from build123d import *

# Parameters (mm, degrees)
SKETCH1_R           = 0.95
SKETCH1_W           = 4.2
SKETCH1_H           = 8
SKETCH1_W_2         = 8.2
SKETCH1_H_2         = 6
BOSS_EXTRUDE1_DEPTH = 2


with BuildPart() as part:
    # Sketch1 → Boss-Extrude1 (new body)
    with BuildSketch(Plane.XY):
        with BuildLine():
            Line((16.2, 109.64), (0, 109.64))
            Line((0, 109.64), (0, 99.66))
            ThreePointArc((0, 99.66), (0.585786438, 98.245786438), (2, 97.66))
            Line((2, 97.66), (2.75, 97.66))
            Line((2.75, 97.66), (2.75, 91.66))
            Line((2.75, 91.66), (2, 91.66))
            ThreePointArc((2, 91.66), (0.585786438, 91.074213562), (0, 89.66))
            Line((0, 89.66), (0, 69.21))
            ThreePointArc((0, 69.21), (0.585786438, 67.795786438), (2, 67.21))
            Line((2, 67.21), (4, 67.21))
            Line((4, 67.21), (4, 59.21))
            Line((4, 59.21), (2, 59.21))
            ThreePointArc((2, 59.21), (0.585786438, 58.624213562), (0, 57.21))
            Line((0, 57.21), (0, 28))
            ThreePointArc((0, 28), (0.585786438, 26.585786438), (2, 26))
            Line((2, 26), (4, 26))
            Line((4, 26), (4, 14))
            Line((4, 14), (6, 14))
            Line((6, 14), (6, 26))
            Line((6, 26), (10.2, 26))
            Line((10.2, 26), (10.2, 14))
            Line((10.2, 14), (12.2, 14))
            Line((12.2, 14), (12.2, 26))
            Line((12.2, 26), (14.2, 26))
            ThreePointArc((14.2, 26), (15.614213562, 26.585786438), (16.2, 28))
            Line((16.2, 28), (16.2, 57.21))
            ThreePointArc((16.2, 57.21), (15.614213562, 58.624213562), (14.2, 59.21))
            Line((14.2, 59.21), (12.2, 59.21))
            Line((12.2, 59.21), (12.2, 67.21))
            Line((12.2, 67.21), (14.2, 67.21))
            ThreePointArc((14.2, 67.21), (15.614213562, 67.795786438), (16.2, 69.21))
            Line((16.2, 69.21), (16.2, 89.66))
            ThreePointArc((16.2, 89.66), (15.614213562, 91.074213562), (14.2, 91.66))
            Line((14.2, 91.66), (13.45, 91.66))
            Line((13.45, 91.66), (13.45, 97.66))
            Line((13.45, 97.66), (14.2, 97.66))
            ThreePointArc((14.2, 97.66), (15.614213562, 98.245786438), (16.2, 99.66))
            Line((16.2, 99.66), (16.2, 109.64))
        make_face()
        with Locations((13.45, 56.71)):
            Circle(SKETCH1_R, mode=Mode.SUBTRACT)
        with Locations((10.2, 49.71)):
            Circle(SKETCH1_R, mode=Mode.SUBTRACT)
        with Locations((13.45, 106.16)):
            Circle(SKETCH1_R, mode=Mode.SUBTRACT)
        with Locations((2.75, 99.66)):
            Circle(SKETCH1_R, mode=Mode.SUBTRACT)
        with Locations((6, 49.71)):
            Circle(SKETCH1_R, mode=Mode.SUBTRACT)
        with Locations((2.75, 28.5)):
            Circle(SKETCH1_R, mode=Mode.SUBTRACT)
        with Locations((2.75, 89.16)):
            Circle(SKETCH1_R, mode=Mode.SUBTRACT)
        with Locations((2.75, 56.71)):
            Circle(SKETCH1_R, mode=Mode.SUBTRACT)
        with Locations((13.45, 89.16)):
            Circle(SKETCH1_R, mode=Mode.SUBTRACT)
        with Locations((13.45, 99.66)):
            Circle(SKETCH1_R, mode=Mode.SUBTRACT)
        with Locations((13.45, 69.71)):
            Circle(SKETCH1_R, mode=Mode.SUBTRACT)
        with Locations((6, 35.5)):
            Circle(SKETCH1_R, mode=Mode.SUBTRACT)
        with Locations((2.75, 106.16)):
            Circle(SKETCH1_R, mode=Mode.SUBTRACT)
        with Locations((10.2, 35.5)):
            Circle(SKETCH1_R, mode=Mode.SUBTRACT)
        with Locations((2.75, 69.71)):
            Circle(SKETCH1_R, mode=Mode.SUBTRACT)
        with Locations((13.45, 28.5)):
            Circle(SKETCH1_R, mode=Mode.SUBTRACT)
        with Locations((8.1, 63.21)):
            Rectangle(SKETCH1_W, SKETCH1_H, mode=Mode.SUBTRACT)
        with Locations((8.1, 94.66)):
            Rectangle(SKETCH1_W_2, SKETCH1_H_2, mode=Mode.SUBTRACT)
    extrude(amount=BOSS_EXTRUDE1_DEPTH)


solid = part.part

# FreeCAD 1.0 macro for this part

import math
import FreeCAD as App
import Part
import Sketcher
Q = App.Units.Quantity

doc = App.newDocument("Part")
params = doc.addObject("Spreadsheet::Sheet", "Params")
for row, (alias, value) in enumerate([
    ("sketch1_radius", "2 mm"),
    ("sketch1_diameter", "1.9 mm"),
    ("sketch1_width", "2 mm"),
    ("sketch1_height", "6 mm"),
    ("sketch1_height2", "8 mm"),
    ("pad1_length", "2 mm"),
], start=1):
    params.set(f"A{row}", alias)
    params.set(f"B{row}", "=" + value)
    params.setAlias(f"B{row}", alias)

body = doc.addObject("PartDesign::Body", "Body")

# Sketch on XY plane
sketch1 = body.newObject("Sketcher::SketchObject", "Sketch")
sketch1.AttachmentSupport = (doc.getObject("XY_Plane"), [""])
sketch1.MapMode = "FlatFace"
sketch1.addGeometry(Part.LineSegment(App.Vector(16.2, 109.6, 0), App.Vector(0, 109.6, 0)), False)
sketch1.addGeometry(Part.LineSegment(App.Vector(0, 109.6, 0), App.Vector(0, 99.7, 0)), False)
sketch1.addGeometry(Part.ArcOfCircle(Part.Circle(App.Vector(2, 99.7, 0), App.Vector(0, 0, 1), 2), math.radians(-180), math.radians(-90)), False)
sketch1.addGeometry(Part.LineSegment(App.Vector(2, 97.7, 0), App.Vector(2.8, 97.7, 0)), False)
sketch1.addGeometry(Part.LineSegment(App.Vector(2.8, 97.7, 0), App.Vector(2.8, 91.7, 0)), False)
sketch1.addGeometry(Part.LineSegment(App.Vector(2.8, 91.7, 0), App.Vector(2, 91.7, 0)), False)
sketch1.addGeometry(Part.ArcOfCircle(Part.Circle(App.Vector(2, 89.7, 0), App.Vector(0, 0, 1), 2), math.radians(90), math.radians(180)), False)
sketch1.addGeometry(Part.LineSegment(App.Vector(0, 89.7, 0), App.Vector(0, 69.2, 0)), False)
sketch1.addGeometry(Part.ArcOfCircle(Part.Circle(App.Vector(2, 69.2, 0), App.Vector(0, 0, 1), 2), math.radians(-180), math.radians(-90)), False)
sketch1.addGeometry(Part.LineSegment(App.Vector(2, 67.2, 0), App.Vector(4, 67.2, 0)), False)
sketch1.addGeometry(Part.LineSegment(App.Vector(4, 67.2, 0), App.Vector(4, 59.2, 0)), False)
sketch1.addGeometry(Part.LineSegment(App.Vector(4, 59.2, 0), App.Vector(2, 59.2, 0)), False)
sketch1.addGeometry(Part.ArcOfCircle(Part.Circle(App.Vector(2, 57.2, 0), App.Vector(0, 0, 1), 2), math.radians(90), math.radians(180)), False)
sketch1.addGeometry(Part.LineSegment(App.Vector(0, 57.2, 0), App.Vector(0, 28, 0)), False)
sketch1.addGeometry(Part.ArcOfCircle(Part.Circle(App.Vector(2, 28, 0), App.Vector(0, 0, 1), 2), math.radians(-180), math.radians(-90)), False)
sketch1.addGeometry(Part.LineSegment(App.Vector(2, 26, 0), App.Vector(4, 26, 0)), False)
sketch1.addGeometry(Part.LineSegment(App.Vector(4, 26, 0), App.Vector(4, 14, 0)), False)
sketch1.addGeometry(Part.LineSegment(App.Vector(4, 14, 0), App.Vector(6, 14, 0)), False)
sketch1.addGeometry(Part.LineSegment(App.Vector(6, 14, 0), App.Vector(6, 26, 0)), False)
sketch1.addGeometry(Part.LineSegment(App.Vector(6, 26, 0), App.Vector(10.2, 26, 0)), False)
sketch1.addGeometry(Part.LineSegment(App.Vector(10.2, 26, 0), App.Vector(10.2, 14, 0)), False)
sketch1.addGeometry(Part.LineSegment(App.Vector(10.2, 14, 0), App.Vector(12.2, 14, 0)), False)
sketch1.addGeometry(Part.LineSegment(App.Vector(12.2, 14, 0), App.Vector(12.2, 26, 0)), False)
sketch1.addGeometry(Part.LineSegment(App.Vector(12.2, 26, 0), App.Vector(14.2, 26, 0)), False)
sketch1.addGeometry(Part.ArcOfCircle(Part.Circle(App.Vector(14.2, 28, 0), App.Vector(0, 0, 1), 2), math.radians(-90), math.radians(0)), False)
sketch1.addGeometry(Part.LineSegment(App.Vector(16.2, 28, 0), App.Vector(16.2, 57.2, 0)), False)
sketch1.addGeometry(Part.ArcOfCircle(Part.Circle(App.Vector(14.2, 57.2, 0), App.Vector(0, 0, 1), 2), math.radians(0), math.radians(90)), False)
sketch1.addGeometry(Part.LineSegment(App.Vector(14.2, 59.2, 0), App.Vector(12.2, 59.2, 0)), False)
sketch1.addGeometry(Part.LineSegment(App.Vector(12.2, 59.2, 0), App.Vector(12.2, 67.2, 0)), False)
sketch1.addGeometry(Part.LineSegment(App.Vector(12.2, 67.2, 0), App.Vector(14.2, 67.2, 0)), False)
sketch1.addGeometry(Part.ArcOfCircle(Part.Circle(App.Vector(14.2, 69.2, 0), App.Vector(0, 0, 1), 2), math.radians(-90), math.radians(0)), False)
sketch1.addGeometry(Part.LineSegment(App.Vector(16.2, 69.2, 0), App.Vector(16.2, 89.7, 0)), False)
sketch1.addGeometry(Part.ArcOfCircle(Part.Circle(App.Vector(14.2, 89.7, 0), App.Vector(0, 0, 1), 2), math.radians(0), math.radians(90)), False)
sketch1.addGeometry(Part.LineSegment(App.Vector(14.2, 91.7, 0), App.Vector(13.4, 91.7, 0)), False)
sketch1.addGeometry(Part.LineSegment(App.Vector(13.4, 91.7, 0), App.Vector(13.4, 97.7, 0)), False)
sketch1.addGeometry(Part.LineSegment(App.Vector(13.4, 97.7, 0), App.Vector(14.2, 97.7, 0)), False)
sketch1.addGeometry(Part.ArcOfCircle(Part.Circle(App.Vector(14.2, 99.7, 0), App.Vector(0, 0, 1), 2), math.radians(-90), math.radians(0)), False)
sketch1.addGeometry(Part.LineSegment(App.Vector(16.2, 99.7, 0), App.Vector(16.2, 109.6, 0)), False)
sketch1.addGeometry(Part.Circle(App.Vector(2.8, 28.5, 0), App.Vector(0, 0, 1), 0.9), False)
sketch1.addGeometry(Part.Circle(App.Vector(6, 35.5, 0), App.Vector(0, 0, 1), 0.9), False)
sketch1.addGeometry(Part.Circle(App.Vector(2.8, 56.7, 0), App.Vector(0, 0, 1), 0.9), False)
sketch1.addGeometry(Part.Circle(App.Vector(6, 49.7, 0), App.Vector(0, 0, 1), 0.9), False)
sketch1.addGeometry(Part.Circle(App.Vector(10.2, 35.5, 0), App.Vector(0, 0, 1), 0.9), False)
sketch1.addGeometry(Part.Circle(App.Vector(13.4, 28.5, 0), App.Vector(0, 0, 1), 0.9), False)
sketch1.addGeometry(Part.Circle(App.Vector(10.2, 49.7, 0), App.Vector(0, 0, 1), 0.9), False)
sketch1.addGeometry(Part.LineSegment(App.Vector(10.2, 59.2, 0), App.Vector(6, 59.2, 0)), False)
sketch1.addGeometry(Part.LineSegment(App.Vector(6, 59.2, 0), App.Vector(6, 67.2, 0)), False)
sketch1.addGeometry(Part.LineSegment(App.Vector(6, 67.2, 0), App.Vector(10.2, 67.2, 0)), False)
sketch1.addGeometry(Part.LineSegment(App.Vector(10.2, 67.2, 0), App.Vector(10.2, 59.2, 0)), False)
sketch1.addGeometry(Part.Circle(App.Vector(13.4, 56.7, 0), App.Vector(0, 0, 1), 0.9), False)
sketch1.addGeometry(Part.Circle(App.Vector(2.8, 69.7, 0), App.Vector(0, 0, 1), 0.9), False)
sketch1.addGeometry(Part.Circle(App.Vector(2.8, 89.2, 0), App.Vector(0, 0, 1), 0.9), False)
sketch1.addGeometry(Part.Circle(App.Vector(2.8, 99.7, 0), App.Vector(0, 0, 1), 0.9), False)
sketch1.addGeometry(Part.Circle(App.Vector(2.8, 106.2, 0), App.Vector(0, 0, 1), 0.9), False)
sketch1.addGeometry(Part.Circle(App.Vector(13.4, 69.7, 0), App.Vector(0, 0, 1), 0.9), False)
sketch1.addGeometry(Part.LineSegment(App.Vector(12.2, 91.7, 0), App.Vector(4, 91.7, 0)), False)
sketch1.addGeometry(Part.LineSegment(App.Vector(4, 91.7, 0), App.Vector(4, 97.7, 0)), False)
sketch1.addGeometry(Part.LineSegment(App.Vector(4, 97.7, 0), App.Vector(12.2, 97.7, 0)), False)
sketch1.addGeometry(Part.LineSegment(App.Vector(12.2, 97.7, 0), App.Vector(12.2, 91.7, 0)), False)
sketch1.addGeometry(Part.Circle(App.Vector(13.4, 89.2, 0), App.Vector(0, 0, 1), 0.9), False)
sketch1.addGeometry(Part.Circle(App.Vector(13.4, 99.7, 0), App.Vector(0, 0, 1), 0.9), False)
sketch1.addGeometry(Part.Circle(App.Vector(13.4, 106.2, 0), App.Vector(0, 0, 1), 0.9), False)
sketch1.addConstraint(Sketcher.Constraint("Coincident", 0, 2, 1, 1))
sketch1.addConstraint(Sketcher.Constraint("Tangent", 1, 2, 2, 1))
sketch1.addConstraint(Sketcher.Constraint("Tangent", 2, 2, 3, 1))
sketch1.addConstraint(Sketcher.Constraint("Coincident", 3, 2, 4, 1))
sketch1.addConstraint(Sketcher.Constraint("Coincident", 4, 2, 5, 1))
sketch1.addConstraint(Sketcher.Constraint("Tangent", 5, 2, 6, 1))
sketch1.addConstraint(Sketcher.Constraint("Tangent", 6, 2, 7, 1))
sketch1.addConstraint(Sketcher.Constraint("Tangent", 7, 2, 8, 1))
sketch1.addConstraint(Sketcher.Constraint("Tangent", 8, 2, 9, 1))
sketch1.addConstraint(Sketcher.Constraint("Coincident", 9, 2, 10, 1))
sketch1.addConstraint(Sketcher.Constraint("Coincident", 10, 2, 11, 1))
sketch1.addConstraint(Sketcher.Constraint("Tangent", 11, 2, 12, 1))
sketch1.addConstraint(Sketcher.Constraint("Tangent", 12, 2, 13, 1))
sketch1.addConstraint(Sketcher.Constraint("Tangent", 13, 2, 14, 1))
sketch1.addConstraint(Sketcher.Constraint("Tangent", 14, 2, 15, 1))
sketch1.addConstraint(Sketcher.Constraint("Coincident", 15, 2, 16, 1))
sketch1.addConstraint(Sketcher.Constraint("Coincident", 16, 2, 17, 1))
sketch1.addConstraint(Sketcher.Constraint("Coincident", 17, 2, 18, 1))
sketch1.addConstraint(Sketcher.Constraint("Coincident", 18, 2, 19, 1))
sketch1.addConstraint(Sketcher.Constraint("Coincident", 19, 2, 20, 1))
sketch1.addConstraint(Sketcher.Constraint("Coincident", 20, 2, 21, 1))
sketch1.addConstraint(Sketcher.Constraint("Coincident", 21, 2, 22, 1))
sketch1.addConstraint(Sketcher.Constraint("Coincident", 22, 2, 23, 1))
sketch1.addConstraint(Sketcher.Constraint("Tangent", 23, 2, 24, 1))
sketch1.addConstraint(Sketcher.Constraint("Tangent", 24, 2, 25, 1))
sketch1.addConstraint(Sketcher.Constraint("Tangent", 25, 2, 26, 1))
sketch1.addConstraint(Sketcher.Constraint("Tangent", 26, 2, 27, 1))
sketch1.addConstraint(Sketcher.Constraint("Coincident", 27, 2, 28, 1))
sketch1.addConstraint(Sketcher.Constraint("Coincident", 28, 2, 29, 1))
sketch1.addConstraint(Sketcher.Constraint("Tangent", 29, 2, 30, 1))
sketch1.addConstraint(Sketcher.Constraint("Tangent", 30, 2, 31, 1))
sketch1.addConstraint(Sketcher.Constraint("Tangent", 31, 2, 32, 1))
sketch1.addConstraint(Sketcher.Constraint("Tangent", 32, 2, 33, 1))
sketch1.addConstraint(Sketcher.Constraint("Coincident", 33, 2, 34, 1))
sketch1.addConstraint(Sketcher.Constraint("Coincident", 34, 2, 35, 1))
sketch1.addConstraint(Sketcher.Constraint("Tangent", 35, 2, 36, 1))
sketch1.addConstraint(Sketcher.Constraint("Tangent", 36, 2, 37, 1))
sketch1.addConstraint(Sketcher.Constraint("Coincident", 37, 2, 0, 1))
sketch1.addConstraint(Sketcher.Constraint("Coincident", 45, 2, 46, 1))
sketch1.addConstraint(Sketcher.Constraint("Coincident", 46, 2, 47, 1))
sketch1.addConstraint(Sketcher.Constraint("Coincident", 47, 2, 48, 1))
sketch1.addConstraint(Sketcher.Constraint("Coincident", 48, 2, 45, 1))
sketch1.addConstraint(Sketcher.Constraint("Coincident", 55, 2, 56, 1))
sketch1.addConstraint(Sketcher.Constraint("Coincident", 56, 2, 57, 1))
sketch1.addConstraint(Sketcher.Constraint("Coincident", 57, 2, 58, 1))
sketch1.addConstraint(Sketcher.Constraint("Coincident", 58, 2, 55, 1))
sketch1.addConstraint(Sketcher.Constraint("Horizontal", 0))
sketch1.addConstraint(Sketcher.Constraint("Vertical", 1))
sketch1.addConstraint(Sketcher.Constraint("Horizontal", 3))
sketch1.addConstraint(Sketcher.Constraint("Vertical", 4))
sketch1.addConstraint(Sketcher.Constraint("Horizontal", 5))
sketch1.addConstraint(Sketcher.Constraint("Vertical", 7))
sketch1.addConstraint(Sketcher.Constraint("Horizontal", 9))
sketch1.addConstraint(Sketcher.Constraint("Vertical", 10))
sketch1.addConstraint(Sketcher.Constraint("Horizontal", 11))
sketch1.addConstraint(Sketcher.Constraint("Vertical", 13))
sketch1.addConstraint(Sketcher.Constraint("Horizontal", 15))
sketch1.addConstraint(Sketcher.Constraint("Vertical", 16))
sketch1.addConstraint(Sketcher.Constraint("Horizontal", 17))
sketch1.addConstraint(Sketcher.Constraint("Vertical", 18))
sketch1.addConstraint(Sketcher.Constraint("Horizontal", 19))
sketch1.addConstraint(Sketcher.Constraint("Vertical", 20))
sketch1.addConstraint(Sketcher.Constraint("Horizontal", 21))
sketch1.addConstraint(Sketcher.Constraint("Vertical", 22))
sketch1.addConstraint(Sketcher.Constraint("Horizontal", 23))
sketch1.addConstraint(Sketcher.Constraint("Vertical", 25))
sketch1.addConstraint(Sketcher.Constraint("Horizontal", 27))
sketch1.addConstraint(Sketcher.Constraint("Vertical", 28))
sketch1.addConstraint(Sketcher.Constraint("Horizontal", 29))
sketch1.addConstraint(Sketcher.Constraint("Vertical", 31))
sketch1.addConstraint(Sketcher.Constraint("Horizontal", 33))
sketch1.addConstraint(Sketcher.Constraint("Vertical", 34))
sketch1.addConstraint(Sketcher.Constraint("Horizontal", 35))
sketch1.addConstraint(Sketcher.Constraint("Vertical", 37))
sketch1.addConstraint(Sketcher.Constraint("Horizontal", 45))
sketch1.addConstraint(Sketcher.Constraint("Vertical", 46))
sketch1.addConstraint(Sketcher.Constraint("Horizontal", 47))
sketch1.addConstraint(Sketcher.Constraint("Vertical", 48))
sketch1.addConstraint(Sketcher.Constraint("Horizontal", 55))
sketch1.addConstraint(Sketcher.Constraint("Vertical", 56))
sketch1.addConstraint(Sketcher.Constraint("Horizontal", 57))
sketch1.addConstraint(Sketcher.Constraint("Vertical", 58))
sketch1.addConstraint(Sketcher.Constraint("Equal", 2, 6))
sketch1.addConstraint(Sketcher.Constraint("Equal", 6, 8))
sketch1.addConstraint(Sketcher.Constraint("Equal", 8, 12))
sketch1.addConstraint(Sketcher.Constraint("Equal", 12, 14))
sketch1.addConstraint(Sketcher.Constraint("Equal", 14, 24))
sketch1.addConstraint(Sketcher.Constraint("Equal", 24, 26))
sketch1.addConstraint(Sketcher.Constraint("Equal", 26, 30))
sketch1.addConstraint(Sketcher.Constraint("Equal", 30, 32))
sketch1.addConstraint(Sketcher.Constraint("Equal", 32, 36))
sketch1.addConstraint(Sketcher.Constraint("Equal", 38, 39))
sketch1.addConstraint(Sketcher.Constraint("Equal", 39, 40))
sketch1.addConstraint(Sketcher.Constraint("Equal", 40, 41))
sketch1.addConstraint(Sketcher.Constraint("Equal", 41, 42))
sketch1.addConstraint(Sketcher.Constraint("Equal", 42, 43))
sketch1.addConstraint(Sketcher.Constraint("Equal", 43, 44))
sketch1.addConstraint(Sketcher.Constraint("Equal", 44, 49))
sketch1.addConstraint(Sketcher.Constraint("Equal", 49, 50))
sketch1.addConstraint(Sketcher.Constraint("Equal", 50, 51))
sketch1.addConstraint(Sketcher.Constraint("Equal", 51, 52))
sketch1.addConstraint(Sketcher.Constraint("Equal", 52, 53))
sketch1.addConstraint(Sketcher.Constraint("Equal", 53, 54))
sketch1.addConstraint(Sketcher.Constraint("Equal", 54, 59))
sketch1.addConstraint(Sketcher.Constraint("Equal", 59, 60))
sketch1.addConstraint(Sketcher.Constraint("Equal", 60, 61))
sketch1.addConstraint(Sketcher.Constraint("PointOnObject", 0, 2, -2))
sketch1.addConstraint(Sketcher.Constraint("PointOnObject", 6, 2, -2))
sketch1.addConstraint(Sketcher.Constraint("PointOnObject", 12, 2, -2))
sketch1.addConstraint(Sketcher.Constraint("Horizontal", 14, 3, 24, 3))
sketch1.addConstraint(Sketcher.Constraint("Horizontal", 12, 3, 26, 3))
sketch1.addConstraint(Sketcher.Constraint("Horizontal", 8, 3, 30, 3))
sketch1.addConstraint(Sketcher.Constraint("Horizontal", 6, 3, 32, 3))
sketch1.addConstraint(Sketcher.Constraint("Horizontal", 2, 3, 36, 3))
sketch1.addConstraint(Sketcher.Constraint("Horizontal", 39, 3, 42, 3))
sketch1.addConstraint(Sketcher.Constraint("Horizontal", 38, 3, 43, 3))
sketch1.addConstraint(Sketcher.Constraint("Horizontal", 41, 3, 44, 3))
sketch1.addConstraint(Sketcher.Constraint("Horizontal", 40, 3, 49, 3))
sketch1.addConstraint(Sketcher.Constraint("Horizontal", 36, 3, 52, 3))
sketch1.addConstraint(Sketcher.Constraint("Horizontal", 50, 3, 54, 3))
sketch1.addConstraint(Sketcher.Constraint("Horizontal", 51, 3, 59, 3))
sketch1.addConstraint(Sketcher.Constraint("Horizontal", 52, 3, 60, 3))
sketch1.addConstraint(Sketcher.Constraint("Horizontal", 53, 3, 61, 3))
sketch1.addConstraint(Sketcher.Constraint("Horizontal", 15, 2, 18, 2))
sketch1.addConstraint(Sketcher.Constraint("Horizontal", 17, 2, 20, 2))
sketch1.addConstraint(Sketcher.Constraint("Horizontal", 27, 2, 45, 2))
sketch1.addConstraint(Sketcher.Constraint("Horizontal", 29, 2, 46, 2))
sketch1.addConstraint(Sketcher.Constraint("Horizontal", 33, 2, 55, 2))
sketch1.addConstraint(Sketcher.Constraint("Horizontal", 35, 2, 56, 2))
sketch1.addConstraint(Sketcher.Constraint("Vertical", 26, 3, 30, 3))
sketch1.addConstraint(Sketcher.Constraint("Vertical", 32, 3, 36, 3))
sketch1.addConstraint(Sketcher.Constraint("Vertical", 38, 3, 40, 3))
sketch1.addConstraint(Sketcher.Constraint("Vertical", 39, 3, 41, 3))
sketch1.addConstraint(Sketcher.Constraint("Vertical", 42, 3, 44, 3))
sketch1.addConstraint(Sketcher.Constraint("Vertical", 43, 3, 49, 3))
sketch1.addConstraint(Sketcher.Constraint("Vertical", 40, 3, 50, 3))
sketch1.addConstraint(Sketcher.Constraint("Vertical", 50, 3, 51, 3))
sketch1.addConstraint(Sketcher.Constraint("Vertical", 51, 3, 52, 3))
sketch1.addConstraint(Sketcher.Constraint("Vertical", 52, 3, 53, 3))
sketch1.addConstraint(Sketcher.Constraint("Vertical", 49, 3, 54, 3))
sketch1.addConstraint(Sketcher.Constraint("Vertical", 54, 3, 59, 3))
sketch1.addConstraint(Sketcher.Constraint("Vertical", 59, 3, 60, 3))
sketch1.addConstraint(Sketcher.Constraint("Vertical", 60, 3, 61, 3))
sketch1.addConstraint(Sketcher.Constraint("Vertical", 53, 3, 3, 2))
sketch1.addConstraint(Sketcher.Constraint("Vertical", 10, 2, 15, 2))
sketch1.addConstraint(Sketcher.Constraint("Vertical", 41, 3, 17, 2))
sketch1.addConstraint(Sketcher.Constraint("Vertical", 44, 3, 19, 2))
sketch1.addConstraint(Sketcher.Constraint("Vertical", 22, 2, 27, 2))
sketch1.addConstraint(Sketcher.Constraint("Vertical", 61, 3, 33, 2))
sketch1.addConstraint(Sketcher.Constraint("Vertical", 18, 2, 45, 2))
sketch1.addConstraint(Sketcher.Constraint("Vertical", 20, 2, 47, 2))
sketch1.addConstraint(Sketcher.Constraint("Vertical", 16, 2, 55, 2))
sketch1.addConstraint(Sketcher.Constraint("Vertical", 28, 2, 57, 2))
sketch1.addConstraint(Sketcher.Constraint("Equal", 15, 17))
sketch1.addConstraint(Sketcher.Constraint("Equal", 17, 21))
sketch1.addConstraint(Sketcher.Constraint("Equal", 21, 23))
sketch1.addConstraint(Sketcher.Constraint("Equal", 5, 33))
sketch1.addConstraint(Sketcher.Constraint("Radius", 2, Q("2 mm")))
sketch1.addConstraint(Sketcher.Constraint("Diameter", 38, Q("1.9 mm")))
sketch1.addConstraint(Sketcher.Constraint("DistanceX", 9, 1, 9, 2, Q("2 mm")))
sketch1.addConstraint(Sketcher.Constraint("DistanceY", 4, 2, 4, 1, Q("6 mm")))
sketch1.addConstraint(Sketcher.Constraint("DistanceY", 10, 2, 10, 1, Q("8 mm")))
sketch1.addConstraint(Sketcher.Constraint("DistanceY", 16, 2, 16, 1, Q("12 mm")))
sketch1.addConstraint(Sketcher.Constraint("DistanceX", 0, 2, 0, 1, Q("16.2 mm")))
sketch1.addConstraint(Sketcher.Constraint("DistanceY", -1, 1, 14, 3, Q("28 mm")))
sketch1.addConstraint(Sketcher.Constraint("DistanceX", 3, 1, 3, 2, Q("0.75 mm")))
sketch1.addConstraint(Sketcher.Constraint("DistanceY", 1, 2, 1, 1, Q("9.98 mm")))
sketch1.addConstraint(Sketcher.Constraint("DistanceY", 7, 2, 7, 1, Q("20.45 mm")))
sketch1.addConstraint(Sketcher.Constraint("DistanceY", 13, 2, 13, 1, Q("29.21 mm")))
sketch1.addConstraint(Sketcher.Constraint("DistanceY", -1, 1, 38, 3, Q("28.5 mm")))
sketch1.addConstraint(Sketcher.Constraint("DistanceY", -1, 1, 39, 3, Q("35.5 mm")))
sketch1.addConstraint(Sketcher.Constraint("DistanceY", -1, 1, 40, 3, Q("56.71 mm")))
sketch1.addConstraint(Sketcher.Constraint("DistanceY", -1, 1, 41, 3, Q("49.71 mm")))
sketch1.addConstraint(Sketcher.Constraint("DistanceY", -1, 1, 50, 3, Q("69.71 mm")))
sketch1.addConstraint(Sketcher.Constraint("DistanceY", -1, 1, 51, 3, Q("89.16 mm")))
sketch1.addConstraint(Sketcher.Constraint("DistanceY", -1, 1, 53, 3, Q("106.16 mm")))
sketch1.setExpression("Constraints[157]", "Params.sketch1_radius")
sketch1.setExpression("Constraints[158]", "Params.sketch1_diameter")
sketch1.setExpression("Constraints[159]", "Params.sketch1_width")
sketch1.setExpression("Constraints[160]", "Params.sketch1_height")
sketch1.setExpression("Constraints[161]", "Params.sketch1_height2")
pad1 = body.newObject("PartDesign::Pad", "Pad")
pad1.Profile = sketch1
pad1.setExpression("Length", "Params.pad1_length")

doc.recompute()
